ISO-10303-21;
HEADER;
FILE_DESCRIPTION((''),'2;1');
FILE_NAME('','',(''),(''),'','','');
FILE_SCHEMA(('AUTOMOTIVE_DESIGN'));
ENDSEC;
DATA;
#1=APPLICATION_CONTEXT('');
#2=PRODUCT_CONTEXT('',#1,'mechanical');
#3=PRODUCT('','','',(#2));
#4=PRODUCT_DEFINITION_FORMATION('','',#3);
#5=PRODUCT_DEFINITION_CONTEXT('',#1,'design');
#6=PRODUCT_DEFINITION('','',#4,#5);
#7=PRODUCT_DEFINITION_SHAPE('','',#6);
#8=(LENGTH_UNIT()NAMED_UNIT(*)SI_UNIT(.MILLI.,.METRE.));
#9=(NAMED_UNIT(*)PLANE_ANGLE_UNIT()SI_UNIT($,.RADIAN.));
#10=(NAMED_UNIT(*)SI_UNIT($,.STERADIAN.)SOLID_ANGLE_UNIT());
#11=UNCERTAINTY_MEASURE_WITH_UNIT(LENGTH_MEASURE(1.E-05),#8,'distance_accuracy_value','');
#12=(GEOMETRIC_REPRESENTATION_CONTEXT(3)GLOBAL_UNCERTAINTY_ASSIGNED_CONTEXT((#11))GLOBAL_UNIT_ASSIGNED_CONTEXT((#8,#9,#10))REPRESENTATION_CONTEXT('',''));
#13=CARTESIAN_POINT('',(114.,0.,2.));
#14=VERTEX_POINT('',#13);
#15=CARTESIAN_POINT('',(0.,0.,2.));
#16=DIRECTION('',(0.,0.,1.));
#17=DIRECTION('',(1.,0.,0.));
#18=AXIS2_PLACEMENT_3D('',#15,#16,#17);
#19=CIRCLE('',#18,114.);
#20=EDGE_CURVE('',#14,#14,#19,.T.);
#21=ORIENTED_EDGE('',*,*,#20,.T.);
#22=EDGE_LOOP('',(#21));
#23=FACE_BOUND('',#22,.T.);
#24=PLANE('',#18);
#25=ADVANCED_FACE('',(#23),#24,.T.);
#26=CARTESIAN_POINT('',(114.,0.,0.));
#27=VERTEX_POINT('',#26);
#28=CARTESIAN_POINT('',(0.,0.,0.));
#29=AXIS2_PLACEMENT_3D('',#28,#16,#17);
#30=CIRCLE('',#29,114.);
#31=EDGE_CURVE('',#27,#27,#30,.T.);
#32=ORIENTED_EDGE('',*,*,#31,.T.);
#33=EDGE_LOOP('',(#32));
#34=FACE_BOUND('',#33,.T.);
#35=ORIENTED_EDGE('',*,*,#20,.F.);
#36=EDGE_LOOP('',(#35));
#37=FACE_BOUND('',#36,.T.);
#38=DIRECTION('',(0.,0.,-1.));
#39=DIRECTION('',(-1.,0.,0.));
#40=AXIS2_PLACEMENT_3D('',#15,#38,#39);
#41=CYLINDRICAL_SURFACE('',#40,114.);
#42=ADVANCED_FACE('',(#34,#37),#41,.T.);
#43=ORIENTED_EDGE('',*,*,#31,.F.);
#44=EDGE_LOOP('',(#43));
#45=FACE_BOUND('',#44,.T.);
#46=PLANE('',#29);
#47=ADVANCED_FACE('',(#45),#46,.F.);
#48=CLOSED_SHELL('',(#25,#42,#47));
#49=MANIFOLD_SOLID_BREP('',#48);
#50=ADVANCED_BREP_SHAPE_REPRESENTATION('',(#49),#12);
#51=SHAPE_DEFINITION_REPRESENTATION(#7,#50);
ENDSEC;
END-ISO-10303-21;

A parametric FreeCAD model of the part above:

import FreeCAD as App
import Part
import Sketcher
Q = App.Units.Quantity

doc = App.newDocument("Part")
params = doc.addObject("Spreadsheet::Sheet", "Params")
for row, (alias, value) in enumerate([
    ("sketch1_diameter", "228 mm"),
    ("pad1_length", "2 mm"),
], start=1):
    params.set(f"A{row}", alias)
    params.set(f"B{row}", "=" + value)
    params.setAlias(f"B{row}", alias)

body = doc.addObject("PartDesign::Body", "Body")

sketch1 = body.newObject("Sketcher::SketchObject", "Sketch")
sketch1.AttachmentSupport = (doc.getObject("XY_Plane"), [""])
sketch1.MapMode = "FlatFace"
sketch1.addGeometry(Part.Circle(App.Vector(0, 0, 0), App.Vector(0, 0, 1), 114), False)
sketch1.addConstraint([
    Sketcher.Constraint("Coincident", 0, 3, -1, 1),
    Sketcher.Constraint("Diameter", 0, Q("228 mm")),
])
sketch1.setExpression("Constraints[1]", "Params.sketch1_diameter")
pad1 = body.newObject("PartDesign::Pad", "Pad")
pad1.Profile = sketch1
pad1.setExpression("Length", "Params.pad1_length")

doc.recompute()
